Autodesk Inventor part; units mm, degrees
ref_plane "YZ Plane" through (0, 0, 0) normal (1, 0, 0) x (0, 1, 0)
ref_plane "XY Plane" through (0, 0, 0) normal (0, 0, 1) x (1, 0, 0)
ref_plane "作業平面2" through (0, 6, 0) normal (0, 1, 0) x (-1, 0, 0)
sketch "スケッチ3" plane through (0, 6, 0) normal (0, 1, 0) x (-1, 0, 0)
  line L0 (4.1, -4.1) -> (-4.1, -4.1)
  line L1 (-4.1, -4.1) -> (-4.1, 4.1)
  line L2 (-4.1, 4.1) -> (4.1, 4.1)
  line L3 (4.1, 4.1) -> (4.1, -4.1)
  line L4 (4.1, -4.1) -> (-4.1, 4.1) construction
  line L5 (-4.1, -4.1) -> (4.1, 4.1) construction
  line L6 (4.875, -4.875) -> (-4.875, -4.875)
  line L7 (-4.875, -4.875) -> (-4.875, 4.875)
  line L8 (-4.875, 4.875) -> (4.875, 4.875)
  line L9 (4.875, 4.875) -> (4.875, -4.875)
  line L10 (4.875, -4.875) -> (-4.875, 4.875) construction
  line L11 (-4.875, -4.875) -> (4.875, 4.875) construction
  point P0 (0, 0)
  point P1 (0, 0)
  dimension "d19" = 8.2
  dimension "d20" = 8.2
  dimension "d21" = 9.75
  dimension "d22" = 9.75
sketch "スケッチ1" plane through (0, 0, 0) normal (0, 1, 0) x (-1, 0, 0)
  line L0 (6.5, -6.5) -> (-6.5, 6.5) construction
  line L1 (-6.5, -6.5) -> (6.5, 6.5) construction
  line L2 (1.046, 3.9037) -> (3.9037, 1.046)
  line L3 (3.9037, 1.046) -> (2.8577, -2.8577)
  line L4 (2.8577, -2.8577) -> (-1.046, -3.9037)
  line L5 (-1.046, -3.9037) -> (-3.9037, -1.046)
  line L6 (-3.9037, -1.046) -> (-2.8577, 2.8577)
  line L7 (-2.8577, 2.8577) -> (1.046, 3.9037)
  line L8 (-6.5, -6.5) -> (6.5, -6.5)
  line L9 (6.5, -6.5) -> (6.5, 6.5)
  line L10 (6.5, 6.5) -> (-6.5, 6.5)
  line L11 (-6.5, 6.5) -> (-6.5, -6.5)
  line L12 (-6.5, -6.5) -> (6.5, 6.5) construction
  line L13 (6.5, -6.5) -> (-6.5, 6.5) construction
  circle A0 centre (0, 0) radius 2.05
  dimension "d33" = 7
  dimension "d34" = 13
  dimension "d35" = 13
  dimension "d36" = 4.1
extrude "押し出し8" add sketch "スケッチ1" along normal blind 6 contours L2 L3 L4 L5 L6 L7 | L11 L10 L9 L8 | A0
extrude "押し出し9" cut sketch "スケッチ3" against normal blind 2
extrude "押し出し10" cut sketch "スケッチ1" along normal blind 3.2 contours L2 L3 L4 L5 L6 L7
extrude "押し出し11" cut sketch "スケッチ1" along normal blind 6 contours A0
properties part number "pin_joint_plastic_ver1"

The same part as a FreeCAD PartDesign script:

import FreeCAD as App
import Part
import Sketcher
Q = App.Units.Quantity


def add_polygon(sketch, points):
    """Adds a closed chain of lines whose ends are joined by coincident constraints."""
    first, n = sketch.GeometryCount, len(points)
    for a, b in zip(points, points[1:] + points[:1]):
        sketch.addGeometry(Part.LineSegment(App.Vector(*a, 0), App.Vector(*b, 0)), False)
    for i in range(n):
        sketch.addConstraint(Sketcher.Constraint("Coincident", first + i, 2, first + (i + 1) % n, 1))

doc = App.newDocument("Part")
body = doc.addObject("PartDesign::Body", "Body")

sketch1 = doc.addObject("Sketcher::SketchObject", "Sketch")
body.addObject(sketch1)
sketch1.AttachmentSupport = (doc.XZ_Plane, [""])
sketch1.MapMode = "FlatFace"
add_polygon(sketch1, [(6, 6), (6, -6), (-6, -6), (-6, 6)])
sketch1.addConstraint([
    Sketcher.Constraint("Vertical", 0),
    Sketcher.Constraint("Horizontal", 1),
    Sketcher.Constraint("Vertical", 2),
    Sketcher.Constraint("Horizontal", 3),
    Sketcher.Constraint("Symmetric", 0, 2, 2, 2, -1, 1),
    Sketcher.Constraint("Equal", 3, 0),
    Sketcher.Constraint("DistanceX", 1, 2, 1, 1, Q("13 mm")),
])
pad1 = doc.addObject("PartDesign::Pad", "Pad")
body.addObject(pad1)
pad1.Profile = sketch1
pad1.Length = 6
pad1.Reversed = True

sketch2 = doc.addObject("Sketcher::SketchObject", "Sketch001")
body.addObject(sketch2)
sketch2.AttachmentSupport = (doc.XZ_Plane, [""])
sketch2.MapMode = "FlatFace"
sketch2.AttachmentOffset = App.Placement(App.Vector(0, 0, -6), App.Rotation())
add_polygon(sketch2, [(5, -5), (-5, -5), (-5, 5), (5, 5)])
add_polygon(sketch2, [(-4, 4), (-4, -4), (4, -4), (4, 4)])
sketch2.addConstraint([
    Sketcher.Constraint("Horizontal", 0),
    Sketcher.Constraint("Vertical", 1),
    Sketcher.Constraint("Horizontal", 2),
    Sketcher.Constraint("Vertical", 3),
    Sketcher.Constraint("Vertical", 4),
    Sketcher.Constraint("Horizontal", 5),
    Sketcher.Constraint("Vertical", 6),
    Sketcher.Constraint("Horizontal", 7),
    Sketcher.Constraint("Symmetric", 0, 2, 2, 2, -1, 1),
    Sketcher.Constraint("Symmetric", 4, 2, 6, 2, -1, 1),
    Sketcher.Constraint("Equal", 2, 1),
    Sketcher.Constraint("Equal", 7, 4),
    Sketcher.Constraint("DistanceX", 5, 1, 5, 2, Q("8.2 mm")),
    Sketcher.Constraint("DistanceX", 0, 2, 0, 1, Q("9.75 mm")),
])
pocket1 = doc.addObject("PartDesign::Pocket", "Pocket")
body.addObject(pocket1)
pocket1.Profile = sketch2
pocket1.Length = 2
pocket1.Reversed = True

sketch3 = doc.addObject("Sketcher::SketchObject", "Sketch002")
body.addObject(sketch3)
sketch3.AttachmentSupport = (doc.XZ_Plane, [""])
sketch3.MapMode = "FlatFace"
add_polygon(sketch3, [(-3.9, 1), (-1, 3.9), (2.9, 2.9), (3.9, -1), (1, -3.9), (-2.9, -2.9)])
sketch3.addGeometry(Part.Circle(App.Vector(0, 0, 0), App.Vector(0, 0, 1), 2), False)
sketch3.addConstraint([
    Sketcher.Constraint("Coincident", 6, 3, -1, 1),
    Sketcher.Constraint("Symmetric", 0, 2, 3, 2, -1, 1),
    Sketcher.Constraint("Symmetric", 1, 2, 4, 2, -1, 1),
    Sketcher.Constraint("Symmetric", 2, 2, 5, 2, -1, 1),
    Sketcher.Constraint("Equal", 0, 1),
    Sketcher.Constraint("Equal", 1, 2),
    Sketcher.Constraint("Diameter", 6, Q("4.1 mm")),
    Sketcher.Constraint("Angle", 0, Q("45 deg")),
    Sketcher.Constraint("Angle", 1, Q("-15 deg")),
    Sketcher.Constraint("Angle", 2, Q("-75 deg")),
    Sketcher.Constraint("DistanceX", 0, 2, -1, 1, Q("1.046 mm")),
])
pocket2 = doc.addObject("PartDesign::Pocket", "Pocket001")
body.addObject(pocket2)
pocket2.Profile = sketch3
pocket2.Length = 3.2

sketch4 = doc.addObject("Sketcher::SketchObject", "Sketch003")
body.addObject(sketch4)
sketch4.AttachmentSupport = (doc.XZ_Plane, [""])
sketch4.MapMode = "FlatFace"
sketch4.addGeometry(Part.Circle(App.Vector(0, 0, 0), App.Vector(0, 0, 1), 2), False)
sketch4.addConstraint([
    Sketcher.Constraint("Coincident", 0, 3, -1, 1),
    Sketcher.Constraint("Diameter", 0, Q("4.1 mm")),
])
pocket3 = doc.addObject("PartDesign::Pocket", "Pocket002")
body.addObject(pocket3)
pocket3.Profile = sketch4
pocket3.Length = 6

doc.recompute()
